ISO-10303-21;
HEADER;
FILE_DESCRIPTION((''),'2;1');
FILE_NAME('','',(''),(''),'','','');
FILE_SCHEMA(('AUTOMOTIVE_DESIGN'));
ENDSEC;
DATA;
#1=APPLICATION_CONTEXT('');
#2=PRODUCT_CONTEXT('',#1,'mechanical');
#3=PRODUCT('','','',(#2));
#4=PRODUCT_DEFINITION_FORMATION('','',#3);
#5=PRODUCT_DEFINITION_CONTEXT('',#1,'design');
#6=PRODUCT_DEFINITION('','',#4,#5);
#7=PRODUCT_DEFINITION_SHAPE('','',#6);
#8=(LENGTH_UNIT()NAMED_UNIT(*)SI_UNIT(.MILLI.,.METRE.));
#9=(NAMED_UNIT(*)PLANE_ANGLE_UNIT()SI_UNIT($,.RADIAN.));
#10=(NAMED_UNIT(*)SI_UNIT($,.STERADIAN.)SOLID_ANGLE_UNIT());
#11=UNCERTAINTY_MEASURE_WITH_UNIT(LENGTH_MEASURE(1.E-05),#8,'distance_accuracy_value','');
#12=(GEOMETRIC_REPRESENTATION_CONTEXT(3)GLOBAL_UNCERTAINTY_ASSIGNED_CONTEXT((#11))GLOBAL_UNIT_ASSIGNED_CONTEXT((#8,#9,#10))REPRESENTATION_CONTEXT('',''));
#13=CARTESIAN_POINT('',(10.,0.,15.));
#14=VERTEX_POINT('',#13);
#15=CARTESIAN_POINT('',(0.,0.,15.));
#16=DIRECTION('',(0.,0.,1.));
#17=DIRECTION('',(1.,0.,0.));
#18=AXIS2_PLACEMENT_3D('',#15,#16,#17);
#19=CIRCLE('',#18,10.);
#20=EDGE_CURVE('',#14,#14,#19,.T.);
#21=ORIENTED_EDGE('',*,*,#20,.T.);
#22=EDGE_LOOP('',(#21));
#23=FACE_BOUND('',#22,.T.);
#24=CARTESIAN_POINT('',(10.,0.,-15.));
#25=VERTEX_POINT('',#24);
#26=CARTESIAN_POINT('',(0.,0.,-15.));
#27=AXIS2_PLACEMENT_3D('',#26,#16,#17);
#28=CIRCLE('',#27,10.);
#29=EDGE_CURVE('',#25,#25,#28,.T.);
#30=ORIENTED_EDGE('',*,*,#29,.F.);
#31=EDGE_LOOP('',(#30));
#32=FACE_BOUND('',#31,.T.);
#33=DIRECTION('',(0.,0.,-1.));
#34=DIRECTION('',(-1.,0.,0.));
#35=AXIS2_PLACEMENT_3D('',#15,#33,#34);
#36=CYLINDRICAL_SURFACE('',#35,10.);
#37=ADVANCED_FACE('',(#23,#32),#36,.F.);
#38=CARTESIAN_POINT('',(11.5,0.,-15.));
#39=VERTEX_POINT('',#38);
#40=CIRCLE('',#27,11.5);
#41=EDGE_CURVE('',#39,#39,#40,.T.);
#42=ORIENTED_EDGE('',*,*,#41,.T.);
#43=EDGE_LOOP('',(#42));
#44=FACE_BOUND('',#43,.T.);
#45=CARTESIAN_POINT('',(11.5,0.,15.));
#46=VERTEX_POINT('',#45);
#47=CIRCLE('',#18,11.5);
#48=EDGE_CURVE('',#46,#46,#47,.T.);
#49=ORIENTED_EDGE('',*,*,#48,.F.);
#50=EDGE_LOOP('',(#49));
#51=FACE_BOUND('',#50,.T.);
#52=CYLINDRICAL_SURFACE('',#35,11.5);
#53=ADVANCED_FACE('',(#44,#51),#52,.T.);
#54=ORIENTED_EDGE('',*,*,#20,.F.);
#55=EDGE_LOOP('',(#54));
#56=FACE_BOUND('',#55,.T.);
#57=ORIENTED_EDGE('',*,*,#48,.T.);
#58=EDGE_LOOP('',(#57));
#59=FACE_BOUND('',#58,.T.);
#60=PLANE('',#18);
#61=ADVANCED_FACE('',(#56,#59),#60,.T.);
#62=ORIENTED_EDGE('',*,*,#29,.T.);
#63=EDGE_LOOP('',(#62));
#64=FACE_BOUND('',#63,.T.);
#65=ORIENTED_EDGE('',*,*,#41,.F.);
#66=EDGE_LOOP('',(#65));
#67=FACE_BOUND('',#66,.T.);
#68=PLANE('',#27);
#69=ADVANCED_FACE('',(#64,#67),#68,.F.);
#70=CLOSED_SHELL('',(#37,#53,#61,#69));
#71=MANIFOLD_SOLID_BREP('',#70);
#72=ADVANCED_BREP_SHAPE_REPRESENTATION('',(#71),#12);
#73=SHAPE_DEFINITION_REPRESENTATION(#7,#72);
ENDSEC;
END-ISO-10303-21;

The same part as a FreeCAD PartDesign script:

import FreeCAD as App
import Part
import Sketcher
from FreeCAD import Vector

doc = App.newDocument("Part")
params = doc.addObject("Spreadsheet::Sheet", "Params")
for row, (alias, value) in enumerate([
    ("sketch1_diameter", "23 mm"),
    ("sketch1_diameter2", "20 mm"),
    ("pad1_length", "30 mm"),
], start=1):
    params.set(f"A{row}", alias)
    params.set(f"B{row}", "=" + value)
    params.setAlias(f"B{row}", alias)

body = doc.addObject("PartDesign::Body", "Body")

sketch1 = body.newObject("Sketcher::SketchObject", "Sketch")
sketch1.AttachmentSupport = (doc.getObject("XY_Plane"), [""])
sketch1.MapMode = "FlatFace"
sketch1.addGeometry(Part.Circle(Vector(0, 0, 0), Vector(0, 0, 1), 11.5), False)
sketch1.addGeometry(Part.Circle(Vector(0, 0, 0), Vector(0, 0, 1), 10), False)
sketch1.addConstraint(Sketcher.Constraint("Coincident", 0, 3, -1, 1))
sketch1.addConstraint(Sketcher.Constraint("Coincident", 1, 3, -1, 1))
sketch1.addConstraint(Sketcher.Constraint("Diameter", 0, 23.0))
sketch1.addConstraint(Sketcher.Constraint("Diameter", 1, 20.0))
sketch1.setExpression("Constraints[2]", "Params.sketch1_diameter")
sketch1.setExpression("Constraints[3]", "Params.sketch1_diameter2")
pad1 = body.newObject("PartDesign::Pad", "Pad")
pad1.Profile = sketch1
pad1.setExpression("Length", "Params.pad1_length")
pad1.Midplane = True

doc.recompute()
